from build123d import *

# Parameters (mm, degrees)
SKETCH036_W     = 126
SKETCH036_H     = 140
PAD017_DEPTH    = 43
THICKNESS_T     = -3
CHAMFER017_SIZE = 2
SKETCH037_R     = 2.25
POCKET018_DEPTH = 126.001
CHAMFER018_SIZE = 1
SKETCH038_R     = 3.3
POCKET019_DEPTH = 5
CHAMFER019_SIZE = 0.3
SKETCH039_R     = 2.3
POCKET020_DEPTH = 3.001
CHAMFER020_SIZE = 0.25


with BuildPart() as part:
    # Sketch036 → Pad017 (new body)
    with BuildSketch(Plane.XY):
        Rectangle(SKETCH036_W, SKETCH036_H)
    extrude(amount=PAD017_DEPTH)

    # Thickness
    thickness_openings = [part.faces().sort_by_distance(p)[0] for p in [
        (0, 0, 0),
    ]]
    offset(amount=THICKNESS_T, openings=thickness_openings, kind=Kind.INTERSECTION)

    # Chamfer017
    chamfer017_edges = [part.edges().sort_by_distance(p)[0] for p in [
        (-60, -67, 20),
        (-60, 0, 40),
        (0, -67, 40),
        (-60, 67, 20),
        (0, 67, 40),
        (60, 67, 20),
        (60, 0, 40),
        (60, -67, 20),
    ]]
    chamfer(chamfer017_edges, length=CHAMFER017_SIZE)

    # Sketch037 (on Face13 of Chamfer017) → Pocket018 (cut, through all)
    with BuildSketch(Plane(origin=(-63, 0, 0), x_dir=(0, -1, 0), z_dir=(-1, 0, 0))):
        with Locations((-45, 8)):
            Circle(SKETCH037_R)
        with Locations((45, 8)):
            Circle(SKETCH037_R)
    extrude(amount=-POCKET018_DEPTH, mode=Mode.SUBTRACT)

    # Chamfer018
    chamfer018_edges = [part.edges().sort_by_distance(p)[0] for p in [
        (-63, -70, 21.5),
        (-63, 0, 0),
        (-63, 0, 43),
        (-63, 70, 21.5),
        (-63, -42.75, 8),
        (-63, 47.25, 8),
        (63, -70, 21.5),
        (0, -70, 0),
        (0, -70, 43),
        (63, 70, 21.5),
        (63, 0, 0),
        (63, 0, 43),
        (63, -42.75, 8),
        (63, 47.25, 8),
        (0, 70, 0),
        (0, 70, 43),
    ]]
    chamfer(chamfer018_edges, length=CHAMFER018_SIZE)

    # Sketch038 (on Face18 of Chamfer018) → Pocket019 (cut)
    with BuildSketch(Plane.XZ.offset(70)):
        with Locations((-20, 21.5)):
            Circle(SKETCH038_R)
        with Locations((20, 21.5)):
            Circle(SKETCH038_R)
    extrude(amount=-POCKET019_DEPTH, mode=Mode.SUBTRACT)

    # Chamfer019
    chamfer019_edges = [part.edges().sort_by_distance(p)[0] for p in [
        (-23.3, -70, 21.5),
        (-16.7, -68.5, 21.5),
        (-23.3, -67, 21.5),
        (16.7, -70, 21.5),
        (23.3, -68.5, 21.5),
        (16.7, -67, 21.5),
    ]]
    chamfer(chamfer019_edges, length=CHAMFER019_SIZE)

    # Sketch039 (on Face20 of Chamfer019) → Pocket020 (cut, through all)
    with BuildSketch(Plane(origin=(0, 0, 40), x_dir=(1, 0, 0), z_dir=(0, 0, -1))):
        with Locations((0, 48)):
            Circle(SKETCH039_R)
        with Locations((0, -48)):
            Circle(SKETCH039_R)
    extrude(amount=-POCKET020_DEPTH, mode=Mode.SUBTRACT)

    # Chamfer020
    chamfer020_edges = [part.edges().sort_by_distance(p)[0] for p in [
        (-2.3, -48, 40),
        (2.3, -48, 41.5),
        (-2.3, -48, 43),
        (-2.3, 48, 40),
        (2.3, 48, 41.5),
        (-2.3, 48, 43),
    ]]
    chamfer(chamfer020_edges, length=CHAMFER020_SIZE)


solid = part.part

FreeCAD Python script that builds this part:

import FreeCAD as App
import Part
import Sketcher
from FreeCAD import Vector


def edges_at(feature, points):
    """Names of the edges that pass closest to the given points."""
    edges = feature.Shape.Edges
    near = lambda p: min(range(len(edges)), key=lambda i: edges[i].distToShape(Part.Vertex(*p))[0])
    return sorted({f"Edge{near(p) + 1}" for p in points})


def faces_at(feature, points):
    """Names of the faces that lie closest to the given points."""
    faces = feature.Shape.Faces
    near = lambda p: min(range(len(faces)), key=lambda i: faces[i].distToShape(Part.Vertex(*p))[0])
    return sorted({f"Face{near(p) + 1}" for p in points})


def add_polygon(sketch, points):
    """Adds a closed chain of lines whose ends are joined by coincident constraints."""
    first, n = sketch.GeometryCount, len(points)
    for a, b in zip(points, points[1:] + points[:1]):
        sketch.addGeometry(Part.LineSegment(App.Vector(*a, 0), App.Vector(*b, 0)), False)
    for i in range(n):
        sketch.addConstraint(Sketcher.Constraint("Coincident", first + i, 2, first + (i + 1) % n, 1))

doc = App.newDocument("Part")
body = doc.addObject("PartDesign::Body", "Body")

# Sketch on XY plane
sketch1 = body.newObject("Sketcher::SketchObject", "Sketch")
sketch1.AttachmentSupport = (doc.getObject("XY_Plane"), [""])
sketch1.MapMode = "FlatFace"
add_polygon(sketch1, [(-63, 70), (-63, -70), (63, -70), (63, 70)])  # lines 0-3
sketch1.addConstraint(Sketcher.Constraint("Vertical", 0))
sketch1.addConstraint(Sketcher.Constraint("Horizontal", 1))
sketch1.addConstraint(Sketcher.Constraint("Vertical", 2))
sketch1.addConstraint(Sketcher.Constraint("Horizontal", 3))
sketch1.addConstraint(Sketcher.Constraint("Symmetric", 0, 2, 2, 2, -1, 1))
sketch1.addConstraint(Sketcher.Constraint("DistanceX", 1, 1, 1, 2, 126.0))
sketch1.addConstraint(Sketcher.Constraint("DistanceY", 0, 2, 0, 1, 140.0))
pad1 = body.newObject("PartDesign::Pad", "Pad")
pad1.Profile = sketch1
pad1.Length = 43
doc.recompute()

thickness = body.newObject("PartDesign::Thickness", "Thickness")
thickness.Base = (pad1, faces_at(pad1, [(0, 0, 0)]))
thickness.Value = 3
thickness.Reversed = True
thickness.Join = "Intersection"
doc.recompute()

chamfer = body.newObject("PartDesign::Chamfer", "Chamfer")
chamfer.Base = (thickness, edges_at(thickness, [
    (-60, -67, 20),
    (-60, 0, 40),
    (0, -67, 40),
    (-60, 67, 20),
    (0, 67, 40),
    (60, 67, 20),
    (60, 0, 40),
    (60, -67, 20),
]))
chamfer.Size = 2

# Sketch on YZ plane
sketch2 = body.newObject("Sketcher::SketchObject", "Sketch001")
sketch2.AttachmentSupport = (doc.getObject("YZ_Plane"), [""])
sketch2.MapMode = "FlatFace"
sketch2.AttachmentOffset = App.Placement(Vector(0, 0, -63), App.Rotation())
sketch2.addGeometry(Part.Circle(Vector(45, 8, 0), Vector(0, 0, 1), 2.2), False)
sketch2.addGeometry(Part.Circle(Vector(-45, 8, 0), Vector(0, 0, 1), 2.2), False)
sketch2.addConstraint(Sketcher.Constraint("Equal", 0, 1))
sketch2.addConstraint(Sketcher.Constraint("Symmetric", 0, 3, 1, 3, -2))
sketch2.addConstraint(Sketcher.Constraint("Diameter", 0, 4.5))
sketch2.addConstraint(Sketcher.Constraint("DistanceX", -1, 1, 0, 3, 45.0))
sketch2.addConstraint(Sketcher.Constraint("DistanceY", -1, 1, 0, 3, 8.0))
pocket1 = body.newObject("PartDesign::Pocket", "Pocket")
pocket1.Profile = sketch2
pocket1.Type = "ThroughAll"
pocket1.Reversed = True
doc.recompute()

chamfer2 = body.newObject("PartDesign::Chamfer", "Chamfer001")
chamfer2.Base = (pocket1, edges_at(pocket1, [
    (-63, -70, 21.5),
    (-63, 0, 0),
    (-63, 0, 43),
    (-63, 70, 21.5),
    (-63, -42.75, 8),
    (-63, 47.25, 8),
    (63, -70, 21.5),
    (0, -70, 0),
    (0, -70, 43),
    (63, 70, 21.5),
    (63, 0, 0),
    (63, 0, 43),
    (63, -42.75, 8),
    (63, 47.25, 8),
    (0, 70, 0),
    (0, 70, 43),
]))
chamfer2.Size = 1

# Sketch on XZ plane
sketch3 = body.newObject("Sketcher::SketchObject", "Sketch002")
sketch3.AttachmentSupport = (doc.getObject("XZ_Plane"), [""])
sketch3.MapMode = "FlatFace"
sketch3.AttachmentOffset = App.Placement(Vector(0, 0, 70), App.Rotation())
sketch3.addGeometry(Part.Circle(Vector(-20, 21.5, 0), Vector(0, 0, 1), 3.3), False)
sketch3.addGeometry(Part.Circle(Vector(20, 21.5, 0), Vector(0, 0, 1), 3.3), False)
sketch3.addConstraint(Sketcher.Constraint("Equal", 0, 1))
sketch3.addConstraint(Sketcher.Constraint("Symmetric", 0, 3, 1, 3, -2))
sketch3.addConstraint(Sketcher.Constraint("Diameter", 0, 6.6))
sketch3.addConstraint(Sketcher.Constraint("DistanceX", 0, 3, -1, 1, 20.0))
sketch3.addConstraint(Sketcher.Constraint("DistanceY", -1, 1, 0, 3, 21.5))
pocket2 = body.newObject("PartDesign::Pocket", "Pocket001")
pocket2.Profile = sketch3
pocket2.Length = 5
doc.recompute()

chamfer3 = body.newObject("PartDesign::Chamfer", "Chamfer002")
chamfer3.Base = (pocket2, edges_at(pocket2, [
    (-23.3, -70, 21.5),
    (-16.7, -68.5, 21.5),
    (-23.3, -67, 21.5),
    (16.7, -70, 21.5),
    (23.3, -68.5, 21.5),
    (16.7, -67, 21.5),
]))
chamfer3.Size = 0.3

# Sketch on XY plane
sketch4 = body.newObject("Sketcher::SketchObject", "Sketch003")
sketch4.AttachmentSupport = (doc.getObject("XY_Plane"), [""])
sketch4.MapMode = "FlatFace"
sketch4.AttachmentOffset = App.Placement(Vector(0, 0, 40), App.Rotation())
sketch4.addGeometry(Part.Circle(Vector(0, -48, 0), Vector(0, 0, 1), 2.3), False)
sketch4.addGeometry(Part.Circle(Vector(0, 48, 0), Vector(0, 0, 1), 2.3), False)
sketch4.addConstraint(Sketcher.Constraint("Equal", 0, 1))
sketch4.addConstraint(Sketcher.Constraint("Symmetric", 0, 3, 1, 3, -1, 1))
sketch4.addConstraint(Sketcher.Constraint("PointOnObject", 0, 3, -2))
sketch4.addConstraint(Sketcher.Constraint("Diameter", 0, 4.6))
sketch4.addConstraint(Sketcher.Constraint("DistanceY", 0, 3, -1, 1, 48.0))
pocket3 = body.newObject("PartDesign::Pocket", "Pocket002")
pocket3.Profile = sketch4
pocket3.Type = "ThroughAll"
pocket3.Reversed = True
doc.recompute()

chamfer4 = body.newObject("PartDesign::Chamfer", "Chamfer003")
chamfer4.Base = (pocket3, edges_at(pocket3, [
    (-2.3, -48, 40),
    (2.3, -48, 41.5),
    (-2.3, -48, 43),
    (-2.3, 48, 40),
    (2.3, 48, 41.5),
    (-2.3, 48, 43),
]))
chamfer4.Size = 0.25

doc.recompute()
